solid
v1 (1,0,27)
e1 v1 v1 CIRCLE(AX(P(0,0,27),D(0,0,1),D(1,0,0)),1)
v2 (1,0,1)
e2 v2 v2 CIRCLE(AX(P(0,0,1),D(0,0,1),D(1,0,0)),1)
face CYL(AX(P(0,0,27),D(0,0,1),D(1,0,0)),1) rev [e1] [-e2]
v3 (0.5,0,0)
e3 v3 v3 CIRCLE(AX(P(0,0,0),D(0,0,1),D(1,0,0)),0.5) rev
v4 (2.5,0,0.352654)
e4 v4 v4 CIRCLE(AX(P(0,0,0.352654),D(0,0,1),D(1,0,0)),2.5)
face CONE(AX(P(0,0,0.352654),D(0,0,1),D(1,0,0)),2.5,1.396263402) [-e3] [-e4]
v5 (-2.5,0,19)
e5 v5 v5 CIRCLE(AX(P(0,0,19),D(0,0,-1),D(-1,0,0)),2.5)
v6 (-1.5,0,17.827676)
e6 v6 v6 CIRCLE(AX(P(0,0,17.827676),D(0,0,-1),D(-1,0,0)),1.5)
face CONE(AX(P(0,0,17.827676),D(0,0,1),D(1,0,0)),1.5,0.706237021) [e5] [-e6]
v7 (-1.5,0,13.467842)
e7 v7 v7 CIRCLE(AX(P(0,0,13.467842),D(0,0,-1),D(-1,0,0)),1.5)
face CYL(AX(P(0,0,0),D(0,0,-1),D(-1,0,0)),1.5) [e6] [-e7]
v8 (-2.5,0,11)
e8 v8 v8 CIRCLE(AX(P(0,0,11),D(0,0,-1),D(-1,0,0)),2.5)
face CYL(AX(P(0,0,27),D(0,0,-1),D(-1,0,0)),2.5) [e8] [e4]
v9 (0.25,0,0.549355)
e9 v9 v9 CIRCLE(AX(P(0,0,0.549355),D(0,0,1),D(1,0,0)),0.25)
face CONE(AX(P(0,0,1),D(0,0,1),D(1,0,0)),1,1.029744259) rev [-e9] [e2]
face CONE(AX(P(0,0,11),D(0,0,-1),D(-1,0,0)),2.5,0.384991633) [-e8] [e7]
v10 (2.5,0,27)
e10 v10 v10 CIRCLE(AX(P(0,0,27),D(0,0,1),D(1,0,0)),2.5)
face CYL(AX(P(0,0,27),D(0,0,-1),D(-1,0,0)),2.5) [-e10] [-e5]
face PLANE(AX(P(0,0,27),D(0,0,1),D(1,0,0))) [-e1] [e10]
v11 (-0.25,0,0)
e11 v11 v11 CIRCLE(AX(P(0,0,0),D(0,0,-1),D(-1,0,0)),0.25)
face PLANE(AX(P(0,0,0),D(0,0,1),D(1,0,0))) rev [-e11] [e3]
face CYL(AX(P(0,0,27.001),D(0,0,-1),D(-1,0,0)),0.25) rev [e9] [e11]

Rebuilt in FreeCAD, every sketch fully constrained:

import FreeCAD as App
import Part
import Sketcher
Q = App.Units.Quantity


def edges_at(feature, points):
    """Names of the edges that pass closest to the given points."""
    edges = feature.Shape.Edges
    near = lambda p: min(range(len(edges)), key=lambda i: edges[i].distToShape(Part.Vertex(*p))[0])
    return sorted({f"Edge{near(p) + 1}" for p in points})


def add_polygon(sketch, points):
    """Adds a closed chain of lines whose ends are joined by coincident constraints."""
    first, n = sketch.GeometryCount, len(points)
    for a, b in zip(points, points[1:] + points[:1]):
        sketch.addGeometry(Part.LineSegment(App.Vector(*a, 0), App.Vector(*b, 0)), False)
    for i in range(n):
        sketch.addConstraint(Sketcher.Constraint("Coincident", first + i, 2, first + (i + 1) % n, 1))

doc = App.newDocument("Part")
body = doc.addObject("PartDesign::Body", "Body")

sketch1 = doc.addObject("Sketcher::SketchObject", "Sketch")
body.addObject(sketch1)
sketch1.AttachmentSupport = (doc.XY_Plane, [""])
sketch1.MapMode = "FlatFace"
sketch1.addGeometry(Part.Circle(App.Vector(0, 0, 0), App.Vector(0, 0, 1), 2.5), False)
sketch1.addConstraint([
    Sketcher.Constraint("Coincident", 0, 3, -1, 1),
    Sketcher.Constraint("Diameter", 0, Q("5 mm")),
])
pad1 = doc.addObject("PartDesign::Pad", "Pad")
body.addObject(pad1)
pad1.Profile = sketch1
pad1.Length = 27

sketch2 = doc.addObject("Sketcher::SketchObject", "Sketch001")
body.addObject(sketch2)
sketch2.AttachmentSupport = (doc.XZ_Plane, [""])
sketch2.MapMode = "FlatFace"
add_polygon(sketch2, [(2.5, 11), (1.5, 13.5), (1.5, 17.8), (2.5, 19), (3.1, 19), (3.1, 11)])
sketch2.addConstraint([
    Sketcher.Constraint("Vertical", 1),
    Sketcher.Constraint("Horizontal", 3),
    Sketcher.Constraint("Vertical", 4),
    Sketcher.Constraint("Horizontal", 5),
    Sketcher.Constraint("Vertical", 2, 2, 5, 2),
    Sketcher.Constraint("DistanceY", 4, 2, 4, 1, Q("8 mm")),
    Sketcher.Constraint("DistanceY", -1, 1, 2, 2, Q("19 mm")),
    Sketcher.Constraint("DistanceX", 1, 2, 2, 2, Q("1 mm")),
    Sketcher.Constraint("DistanceX", -1, 1, 0, 2, Q("1.5 mm")),
    Sketcher.Constraint("DistanceX", 3, 1, 3, 2, Q("0.63823 mm")),
    Sketcher.Constraint("Distance", 0, Q("2.662751 mm")),
    Sketcher.Constraint("Distance", 2, Q("1.54089 mm")),
])
groove = doc.addObject("PartDesign::Groove", "Groove")
body.addObject(groove)
groove.Profile = sketch2
groove.ReferenceAxis = (sketch2, ["V_Axis"])
groove.Angle = 360
doc.recompute()

chamfer = doc.addObject("PartDesign::Chamfer", "Chamfer")
body.addObject(chamfer)
chamfer.Base = (groove, edges_at(groove, [(-2.5, 0, 0)]))
chamfer.ChamferType = "Two distances"
chamfer.Size = 2
chamfer.Size2 = 0.352654
chamfer.FlipDirection = True

sketch3 = doc.addObject("Sketcher::SketchObject", "Sketch002")
body.addObject(sketch3)
sketch3.AttachmentSupport = (doc.XY_Plane, [""])
sketch3.MapMode = "FlatFace"
sketch3.AttachmentOffset = App.Placement(App.Vector(0, 0, 27), App.Rotation())
sketch3.addGeometry(Part.Circle(App.Vector(0, 0, 0), App.Vector(0, 0, 1), 1), False)
sketch3.addConstraint([
    Sketcher.Constraint("Coincident", 0, 3, -1, 1),
    Sketcher.Constraint("Diameter", 0, Q("2 mm")),
])
doc.recompute()
hole = doc.addObject("PartDesign::Hole", "Hole")
body.addObject(hole)
hole.Profile = sketch3
hole.ThreadType = "None"
hole.Diameter = 2
hole.DepthType = "Dimension"
hole.Depth = 26
hole.DrillPoint = "Angled"
hole.DrillPointAngle = 118

sketch4 = doc.addObject("Sketcher::SketchObject", "Sketch003")
body.addObject(sketch4)
sketch4.AttachmentSupport = (doc.XY_Plane, [""])
sketch4.MapMode = "FlatFace"
sketch4.addGeometry(Part.Circle(App.Vector(0, 0, 0), App.Vector(0, 0, 1), 0.25), False)
sketch4.addConstraint([
    Sketcher.Constraint("Coincident", 0, 3, -1, 1),
    Sketcher.Constraint("Diameter", 0, Q("0.5 mm")),
])
pocket1 = doc.addObject("PartDesign::Pocket", "Pocket")
body.addObject(pocket1)
pocket1.Profile = sketch4
pocket1.Type = "UpToFirst"
pocket1.Reversed = True

doc.recompute()
